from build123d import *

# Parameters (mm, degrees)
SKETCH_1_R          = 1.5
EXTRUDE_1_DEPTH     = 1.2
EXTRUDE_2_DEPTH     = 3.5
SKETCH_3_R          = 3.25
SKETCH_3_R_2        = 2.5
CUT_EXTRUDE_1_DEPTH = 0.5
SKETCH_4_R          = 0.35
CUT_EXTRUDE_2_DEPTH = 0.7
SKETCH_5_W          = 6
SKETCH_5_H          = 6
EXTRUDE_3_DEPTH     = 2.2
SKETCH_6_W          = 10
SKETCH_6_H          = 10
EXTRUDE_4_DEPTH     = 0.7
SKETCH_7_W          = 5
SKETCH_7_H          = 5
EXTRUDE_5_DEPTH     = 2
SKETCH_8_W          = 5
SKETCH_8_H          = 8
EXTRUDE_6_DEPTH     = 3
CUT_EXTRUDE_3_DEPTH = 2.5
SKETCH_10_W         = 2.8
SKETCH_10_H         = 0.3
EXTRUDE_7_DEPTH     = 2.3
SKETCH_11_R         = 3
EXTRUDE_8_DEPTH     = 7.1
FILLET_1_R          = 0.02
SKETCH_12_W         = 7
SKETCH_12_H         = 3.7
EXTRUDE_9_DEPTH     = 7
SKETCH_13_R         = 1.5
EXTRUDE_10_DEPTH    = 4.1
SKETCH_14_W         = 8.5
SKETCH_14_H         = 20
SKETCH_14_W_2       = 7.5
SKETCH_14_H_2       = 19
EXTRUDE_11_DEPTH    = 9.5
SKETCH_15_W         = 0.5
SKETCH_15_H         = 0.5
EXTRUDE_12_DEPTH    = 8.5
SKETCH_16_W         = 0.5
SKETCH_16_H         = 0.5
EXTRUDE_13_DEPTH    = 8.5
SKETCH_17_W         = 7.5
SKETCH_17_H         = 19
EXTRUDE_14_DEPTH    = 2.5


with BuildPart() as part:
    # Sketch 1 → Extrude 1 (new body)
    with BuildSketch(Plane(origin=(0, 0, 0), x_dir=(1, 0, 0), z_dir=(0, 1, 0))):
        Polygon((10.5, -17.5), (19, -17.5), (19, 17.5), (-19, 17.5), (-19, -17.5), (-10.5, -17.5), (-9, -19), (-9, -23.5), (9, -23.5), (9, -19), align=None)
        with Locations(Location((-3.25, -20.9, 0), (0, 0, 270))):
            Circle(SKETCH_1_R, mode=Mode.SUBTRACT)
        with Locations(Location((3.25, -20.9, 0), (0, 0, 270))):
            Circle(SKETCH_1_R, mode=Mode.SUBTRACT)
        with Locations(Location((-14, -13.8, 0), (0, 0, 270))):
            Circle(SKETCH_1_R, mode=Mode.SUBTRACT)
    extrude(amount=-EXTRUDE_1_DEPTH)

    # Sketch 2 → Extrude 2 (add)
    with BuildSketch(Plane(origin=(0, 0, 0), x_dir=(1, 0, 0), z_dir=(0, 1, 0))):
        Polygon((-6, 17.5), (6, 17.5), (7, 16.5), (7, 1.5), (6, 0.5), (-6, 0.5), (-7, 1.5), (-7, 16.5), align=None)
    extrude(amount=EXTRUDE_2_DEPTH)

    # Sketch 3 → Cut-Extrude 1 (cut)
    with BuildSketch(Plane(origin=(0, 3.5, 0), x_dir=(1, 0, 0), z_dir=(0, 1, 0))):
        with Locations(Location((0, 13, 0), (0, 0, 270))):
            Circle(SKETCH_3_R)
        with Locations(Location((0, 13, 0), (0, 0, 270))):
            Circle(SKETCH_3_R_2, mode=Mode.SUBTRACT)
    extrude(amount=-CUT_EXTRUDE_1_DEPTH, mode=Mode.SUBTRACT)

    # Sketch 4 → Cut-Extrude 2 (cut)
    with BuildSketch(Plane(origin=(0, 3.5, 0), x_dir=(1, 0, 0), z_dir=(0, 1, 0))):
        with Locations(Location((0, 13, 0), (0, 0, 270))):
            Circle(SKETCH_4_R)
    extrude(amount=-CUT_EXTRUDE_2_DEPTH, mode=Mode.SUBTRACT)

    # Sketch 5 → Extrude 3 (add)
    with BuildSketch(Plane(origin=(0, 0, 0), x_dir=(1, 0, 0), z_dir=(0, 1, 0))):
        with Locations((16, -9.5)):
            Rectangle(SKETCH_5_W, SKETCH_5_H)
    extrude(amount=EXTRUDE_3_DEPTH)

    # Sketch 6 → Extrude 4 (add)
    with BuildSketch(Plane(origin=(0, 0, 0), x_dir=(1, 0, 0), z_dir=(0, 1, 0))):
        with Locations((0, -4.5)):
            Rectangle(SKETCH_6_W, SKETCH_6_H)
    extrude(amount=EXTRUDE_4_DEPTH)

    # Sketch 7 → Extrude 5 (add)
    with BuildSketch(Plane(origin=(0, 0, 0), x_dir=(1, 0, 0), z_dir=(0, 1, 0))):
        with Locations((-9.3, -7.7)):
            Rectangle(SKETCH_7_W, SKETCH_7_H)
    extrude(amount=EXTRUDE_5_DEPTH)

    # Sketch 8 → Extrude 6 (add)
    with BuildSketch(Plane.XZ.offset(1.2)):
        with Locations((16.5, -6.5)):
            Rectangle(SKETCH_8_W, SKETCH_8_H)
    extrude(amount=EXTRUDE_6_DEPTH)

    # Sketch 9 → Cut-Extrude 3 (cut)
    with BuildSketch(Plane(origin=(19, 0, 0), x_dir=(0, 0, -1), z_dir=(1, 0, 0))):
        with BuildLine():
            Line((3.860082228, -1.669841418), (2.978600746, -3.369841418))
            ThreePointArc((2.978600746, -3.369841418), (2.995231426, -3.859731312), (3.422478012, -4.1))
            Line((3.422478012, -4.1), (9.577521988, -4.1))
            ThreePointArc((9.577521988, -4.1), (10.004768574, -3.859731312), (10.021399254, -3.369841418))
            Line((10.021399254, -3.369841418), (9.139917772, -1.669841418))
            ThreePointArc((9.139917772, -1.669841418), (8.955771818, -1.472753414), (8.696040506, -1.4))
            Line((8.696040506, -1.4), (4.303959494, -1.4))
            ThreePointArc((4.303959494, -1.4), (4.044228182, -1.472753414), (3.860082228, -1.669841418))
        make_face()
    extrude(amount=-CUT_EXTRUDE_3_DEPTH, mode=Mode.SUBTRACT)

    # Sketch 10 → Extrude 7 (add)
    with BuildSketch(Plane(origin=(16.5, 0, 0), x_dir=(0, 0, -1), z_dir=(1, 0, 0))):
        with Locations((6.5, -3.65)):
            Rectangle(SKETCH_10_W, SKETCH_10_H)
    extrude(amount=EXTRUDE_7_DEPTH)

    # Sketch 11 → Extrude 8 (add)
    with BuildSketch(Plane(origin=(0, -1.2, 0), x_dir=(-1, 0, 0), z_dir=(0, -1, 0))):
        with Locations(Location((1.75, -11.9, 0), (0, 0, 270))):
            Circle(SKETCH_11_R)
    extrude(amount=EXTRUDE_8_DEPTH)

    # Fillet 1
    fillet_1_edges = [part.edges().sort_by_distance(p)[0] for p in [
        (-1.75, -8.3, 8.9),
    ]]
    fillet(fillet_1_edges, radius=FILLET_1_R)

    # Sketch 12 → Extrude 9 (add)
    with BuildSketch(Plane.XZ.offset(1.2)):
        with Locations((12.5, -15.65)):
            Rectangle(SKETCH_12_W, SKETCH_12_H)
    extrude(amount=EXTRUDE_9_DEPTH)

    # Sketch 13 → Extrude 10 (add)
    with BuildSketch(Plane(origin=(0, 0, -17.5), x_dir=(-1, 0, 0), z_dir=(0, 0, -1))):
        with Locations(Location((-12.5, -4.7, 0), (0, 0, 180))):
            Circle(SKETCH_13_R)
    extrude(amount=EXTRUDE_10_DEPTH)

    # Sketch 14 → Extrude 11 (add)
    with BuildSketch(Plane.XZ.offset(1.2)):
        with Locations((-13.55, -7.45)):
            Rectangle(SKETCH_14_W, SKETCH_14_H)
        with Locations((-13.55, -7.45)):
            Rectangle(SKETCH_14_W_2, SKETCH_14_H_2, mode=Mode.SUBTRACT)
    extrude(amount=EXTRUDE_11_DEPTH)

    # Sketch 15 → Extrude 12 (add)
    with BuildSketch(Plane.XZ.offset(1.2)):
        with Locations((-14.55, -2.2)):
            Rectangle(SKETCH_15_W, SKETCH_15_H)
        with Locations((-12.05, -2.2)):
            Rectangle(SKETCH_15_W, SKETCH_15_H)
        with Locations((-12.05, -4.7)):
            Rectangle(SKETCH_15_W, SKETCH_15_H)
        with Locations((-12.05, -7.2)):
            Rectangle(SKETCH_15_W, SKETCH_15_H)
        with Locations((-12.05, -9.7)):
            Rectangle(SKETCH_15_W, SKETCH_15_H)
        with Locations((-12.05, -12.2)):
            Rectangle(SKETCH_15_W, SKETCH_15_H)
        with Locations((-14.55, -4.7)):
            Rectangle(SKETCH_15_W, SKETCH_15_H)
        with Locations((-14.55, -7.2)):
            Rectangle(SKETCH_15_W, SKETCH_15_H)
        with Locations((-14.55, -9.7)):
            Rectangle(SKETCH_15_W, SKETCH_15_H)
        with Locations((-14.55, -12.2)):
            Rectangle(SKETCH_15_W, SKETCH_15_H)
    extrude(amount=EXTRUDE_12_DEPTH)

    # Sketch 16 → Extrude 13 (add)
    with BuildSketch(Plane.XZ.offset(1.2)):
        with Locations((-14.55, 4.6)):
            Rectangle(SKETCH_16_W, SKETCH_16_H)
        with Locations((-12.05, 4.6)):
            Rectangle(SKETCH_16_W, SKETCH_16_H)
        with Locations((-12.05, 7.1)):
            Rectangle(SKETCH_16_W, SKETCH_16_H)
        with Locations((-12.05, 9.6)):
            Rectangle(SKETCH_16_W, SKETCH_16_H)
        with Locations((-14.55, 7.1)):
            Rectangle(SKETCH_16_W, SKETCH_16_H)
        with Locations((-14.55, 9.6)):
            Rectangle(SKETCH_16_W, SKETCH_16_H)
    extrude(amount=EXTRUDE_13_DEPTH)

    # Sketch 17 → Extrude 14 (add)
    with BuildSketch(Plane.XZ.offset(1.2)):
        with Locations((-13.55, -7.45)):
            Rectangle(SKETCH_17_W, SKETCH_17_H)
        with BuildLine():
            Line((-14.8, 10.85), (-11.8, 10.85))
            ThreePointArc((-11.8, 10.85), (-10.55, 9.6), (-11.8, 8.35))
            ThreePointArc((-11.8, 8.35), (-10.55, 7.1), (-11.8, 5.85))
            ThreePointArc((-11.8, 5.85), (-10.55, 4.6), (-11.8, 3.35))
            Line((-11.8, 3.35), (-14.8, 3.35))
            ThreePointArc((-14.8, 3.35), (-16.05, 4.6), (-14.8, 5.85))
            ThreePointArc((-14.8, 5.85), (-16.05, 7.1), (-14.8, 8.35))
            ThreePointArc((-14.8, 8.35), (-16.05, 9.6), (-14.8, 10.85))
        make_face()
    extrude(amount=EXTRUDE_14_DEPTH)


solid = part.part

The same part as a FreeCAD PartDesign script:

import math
import FreeCAD as App
import Part
import Sketcher
from FreeCAD import Vector
Q = App.Units.Quantity


def edges_at(feature, points):
    """Names of the edges that pass closest to the given points."""
    edges = feature.Shape.Edges
    near = lambda p: min(range(len(edges)), key=lambda i: edges[i].distToShape(Part.Vertex(*p))[0])
    return sorted({f"Edge{near(p) + 1}" for p in points})

doc = App.newDocument("Part")
body = doc.addObject("PartDesign::Body", "Body")

sketch1 = body.newObject("Sketcher::SketchObject", "Sketch")
sketch1.AttachmentSupport = (doc.getObject("XZ_Plane"), [""])
sketch1.MapMode = "FlatFace"
sketch1.addGeometry([
    Part.LineSegment(Vector(10.5, 17.5, 0), Vector(19, 17.5, 0)),
    Part.LineSegment(Vector(19, 17.5, 0), Vector(19, -17.5, 0)),
    Part.LineSegment(Vector(19, -17.5, 0), Vector(-19, -17.5, 0)),
    Part.LineSegment(Vector(-19, -17.5, 0), Vector(-19, 17.5, 0)),
    Part.LineSegment(Vector(-19, 17.5, 0), Vector(-10.5, 17.5, 0)),
    Part.LineSegment(Vector(-10.5, 17.5, 0), Vector(-9, 19, 0)),
    Part.LineSegment(Vector(-9, 19, 0), Vector(-9, 23.5, 0)),
    Part.LineSegment(Vector(-9, 23.5, 0), Vector(9, 23.5, 0)),
    Part.LineSegment(Vector(9, 23.5, 0), Vector(9, 19, 0)),
    Part.LineSegment(Vector(9, 19, 0), Vector(10.5, 17.5, 0)),
    Part.Circle(Vector(-3.2, 20.9, 0), Vector(0, 0, 1), 1.5),
    Part.Circle(Vector(3.2, 20.9, 0), Vector(0, 0, 1), 1.5),
    Part.Circle(Vector(-14, 13.8, 0), Vector(0, 0, 1), 1.5),
], False)
sketch1.addConstraint([
    Sketcher.Constraint("Coincident", 0, 2, 1, 1),
    Sketcher.Constraint("Coincident", 1, 2, 2, 1),
    Sketcher.Constraint("Coincident", 2, 2, 3, 1),
    Sketcher.Constraint("Coincident", 3, 2, 4, 1),
    Sketcher.Constraint("Coincident", 4, 2, 5, 1),
    Sketcher.Constraint("Coincident", 5, 2, 6, 1),
    Sketcher.Constraint("Coincident", 6, 2, 7, 1),
    Sketcher.Constraint("Coincident", 7, 2, 8, 1),
    Sketcher.Constraint("Coincident", 8, 2, 9, 1),
    Sketcher.Constraint("Coincident", 9, 2, 0, 1),
    Sketcher.Constraint("Horizontal", 0),
    Sketcher.Constraint("Vertical", 1),
    Sketcher.Constraint("Horizontal", 2),
    Sketcher.Constraint("Vertical", 3),
    Sketcher.Constraint("Horizontal", 4),
    Sketcher.Constraint("Vertical", 6),
    Sketcher.Constraint("Horizontal", 7),
    Sketcher.Constraint("Vertical", 8),
    Sketcher.Constraint("Equal", 10, 11),
    Sketcher.Constraint("Equal", 11, 12),
    Sketcher.Constraint("Symmetric", 0, 2, 2, 2, -1, 1),
    Sketcher.Constraint("Symmetric", 10, 3, 11, 3, -2),
    Sketcher.Constraint("Symmetric", 5, 2, 8, 2, -2),
    Sketcher.Constraint("Symmetric", 4, 2, 9, 2, -2),
    Sketcher.Constraint("Perpendicular", 5, 9),
    Sketcher.Constraint("Diameter", 10, Q("3 mm")),
    Sketcher.Constraint("DistanceX", 2, 2, 2, 1, Q("38 mm")),
    Sketcher.Constraint("DistanceX", 7, 1, 7, 2, Q("18 mm")),
    Sketcher.Constraint("DistanceY", 1, 2, 1, 1, Q("35 mm")),
    Sketcher.Constraint("DistanceX", 0, 1, 0, 2, Q("8.5 mm")),
    Sketcher.Constraint("DistanceY", 6, 1, 6, 2, Q("4.5 mm")),
    Sketcher.Constraint("DistanceX", 12, 3, -1, 1, Q("14 mm")),
    Sketcher.Constraint("DistanceY", -1, 1, 10, 3, Q("20.9 mm")),
    Sketcher.Constraint("DistanceY", -1, 1, 12, 3, Q("13.8 mm")),
    Sketcher.Constraint("DistanceX", 10, 3, 11, 3, Q("6.5 mm")),
])
pad1 = body.newObject("PartDesign::Pad", "Pad")
pad1.Profile = sketch1
pad1.Length = 1.2

sketch2 = body.newObject("Sketcher::SketchObject", "Sketch001")
sketch2.AttachmentSupport = (doc.getObject("XZ_Plane"), [""])
sketch2.MapMode = "FlatFace"
sketch2.addGeometry([
    Part.LineSegment(Vector(6, -17.5, 0), Vector(-6, -17.5, 0)),
    Part.LineSegment(Vector(-6, -17.5, 0), Vector(-7, -16.5, 0)),
    Part.LineSegment(Vector(-7, -16.5, 0), Vector(-7, -1.5, 0)),
    Part.LineSegment(Vector(-7, -1.5, 0), Vector(-6, -0.5, 0)),
    Part.LineSegment(Vector(-6, -0.5, 0), Vector(6, -0.5, 0)),
    Part.LineSegment(Vector(6, -0.5, 0), Vector(7, -1.5, 0)),
    Part.LineSegment(Vector(7, -1.5, 0), Vector(7, -16.5, 0)),
    Part.LineSegment(Vector(7, -16.5, 0), Vector(6, -17.5, 0)),
], False)
sketch2.addConstraint([
    Sketcher.Constraint("Coincident", 0, 2, 1, 1),
    Sketcher.Constraint("Coincident", 1, 2, 2, 1),
    Sketcher.Constraint("Coincident", 2, 2, 3, 1),
    Sketcher.Constraint("Coincident", 3, 2, 4, 1),
    Sketcher.Constraint("Coincident", 4, 2, 5, 1),
    Sketcher.Constraint("Coincident", 5, 2, 6, 1),
    Sketcher.Constraint("Coincident", 6, 2, 7, 1),
    Sketcher.Constraint("Coincident", 7, 2, 0, 1),
    Sketcher.Constraint("Horizontal", 0),
    Sketcher.Constraint("Vertical", 2),
    Sketcher.Constraint("Horizontal", 4),
    Sketcher.Constraint("Vertical", 6),
    Sketcher.Constraint("Symmetric", 2, 2, 5, 2, -2),
    Sketcher.Constraint("Perpendicular", 1, 3),
    Sketcher.Constraint("Perpendicular", 3, 5),
    Sketcher.Constraint("Perpendicular", 5, 7),
    Sketcher.Constraint("Horizontal", 1, 2, 6, 2),
    Sketcher.Constraint("Vertical", 0, 2, 3, 2),
    Sketcher.Constraint("Vertical", 4, 2, 7, 2),
    Sketcher.Constraint("DistanceX", 0, 2, 0, 1, Q("12 mm")),
    Sketcher.Constraint("DistanceY", 2, 1, 2, 2, Q("15 mm")),
    Sketcher.Constraint("DistanceX", 1, 2, -1, 1, Q("7 mm")),
    Sketcher.Constraint("DistanceY", 0, 2, -1, 1, Q("17.5 mm")),
])
pad2 = body.newObject("PartDesign::Pad", "Pad001")
pad2.Profile = sketch2
pad2.Length = 3.5
pad2.Reversed = True

sketch3 = body.newObject("Sketcher::SketchObject", "Sketch002")
sketch3.AttachmentSupport = (doc.getObject("XZ_Plane"), [""])
sketch3.MapMode = "FlatFace"
sketch3.AttachmentOffset = App.Placement(Vector(0, 0, -3.5), App.Rotation())
sketch3.addGeometry([
    Part.Circle(Vector(0, -13, 0), Vector(0, 0, 1), 3.2),
    Part.Circle(Vector(0, -13, 0), Vector(0, 0, 1), 2.5),
], False)
sketch3.addConstraint([
    Sketcher.Constraint("Coincident", 1, 3, 0, 3),
    Sketcher.Constraint("PointOnObject", 0, 3, -2),
    Sketcher.Constraint("Diameter", 1, Q("5 mm")),
    Sketcher.Constraint("Diameter", 0, Q("6.5 mm")),
    Sketcher.Constraint("DistanceY", 0, 3, -1, 1, Q("13 mm")),
])
pocket1 = body.newObject("PartDesign::Pocket", "Pocket")
pocket1.Profile = sketch3
pocket1.Length = 0.5
pocket1.Reversed = True

sketch4 = body.newObject("Sketcher::SketchObject", "Sketch003")
sketch4.AttachmentSupport = (doc.getObject("XZ_Plane"), [""])
sketch4.MapMode = "FlatFace"
sketch4.AttachmentOffset = App.Placement(Vector(0, 0, -3.5), App.Rotation())
sketch4.addGeometry(Part.Circle(Vector(0, -13, 0), Vector(0, 0, 1), 0.35), False)
sketch4.addConstraint([
    Sketcher.Constraint("PointOnObject", 0, 3, -2),
    Sketcher.Constraint("Diameter", 0, Q("0.7 mm")),
    Sketcher.Constraint("DistanceY", 0, 3, -1, 1, Q("13 mm")),
])
pocket2 = body.newObject("PartDesign::Pocket", "Pocket001")
pocket2.Profile = sketch4
pocket2.Length = 0.7
pocket2.Reversed = True

sketch5 = body.newObject("Sketcher::SketchObject", "Sketch004")
sketch5.AttachmentSupport = (doc.getObject("XZ_Plane"), [""])
sketch5.MapMode = "FlatFace"
sketch5.addGeometry([
    Part.LineSegment(Vector(13, 6, 0), Vector(13, 12, 0)),
    Part.LineSegment(Vector(13, 12, 0), Vector(19, 12, 0)),
    Part.LineSegment(Vector(19, 12, 0), Vector(19, 6, 0)),
    Part.LineSegment(Vector(19, 6, 0), Vector(13, 6, 0)),
], False)
sketch5.addConstraint([
    Sketcher.Constraint("Coincident", 0, 2, 1, 1),
    Sketcher.Constraint("Coincident", 1, 2, 2, 1),
    Sketcher.Constraint("Coincident", 2, 2, 3, 1),
    Sketcher.Constraint("Coincident", 3, 2, 0, 1),
    Sketcher.Constraint("Vertical", 0),
    Sketcher.Constraint("Horizontal", 1),
    Sketcher.Constraint("Vertical", 2),
    Sketcher.Constraint("Horizontal", 3),
    Sketcher.Constraint("Equal", 3, 0),
    Sketcher.Constraint("DistanceX", 1, 1, 1, 2, Q("6 mm")),
    Sketcher.Constraint("DistanceX", -1, 1, 0, 2, Q("13 mm")),
    Sketcher.Constraint("DistanceY", -1, 1, 0, 2, Q("12.5 mm")),
])
pad3 = body.newObject("PartDesign::Pad", "Pad002")
pad3.Profile = sketch5
pad3.Length = 2.2
pad3.Reversed = True

sketch6 = body.newObject("Sketcher::SketchObject", "Sketch005")
sketch6.AttachmentSupport = (doc.getObject("XZ_Plane"), [""])
sketch6.MapMode = "FlatFace"
sketch6.addGeometry([
    Part.LineSegment(Vector(-5, 0, 0), Vector(-5, 10, 0)),
    Part.LineSegment(Vector(-5, 10, 0), Vector(5, 10, 0)),
    Part.LineSegment(Vector(5, 10, 0), Vector(5, 0, 0)),
    Part.LineSegment(Vector(5, 0, 0), Vector(-5, 0, 0)),
], False)
sketch6.addConstraint([
    Sketcher.Constraint("Coincident", 0, 2, 1, 1),
    Sketcher.Constraint("Coincident", 1, 2, 2, 1),
    Sketcher.Constraint("Coincident", 2, 2, 3, 1),
    Sketcher.Constraint("Coincident", 3, 2, 0, 1),
    Sketcher.Constraint("Vertical", 0),
    Sketcher.Constraint("Horizontal", 1),
    Sketcher.Constraint("Vertical", 2),
    Sketcher.Constraint("Horizontal", 3),
    Sketcher.Constraint("Equal", 3, 0),
    Sketcher.Constraint("DistanceX", 1, 1, 1, 2, Q("10 mm")),
    Sketcher.Constraint("DistanceX", 0, 2, -1, 1, Q("5 mm")),
    Sketcher.Constraint("DistanceY", -1, 1, 0, 2, Q("9.5 mm")),
])
pad4 = body.newObject("PartDesign::Pad", "Pad003")
pad4.Profile = sketch6
pad4.Length = 0.7
pad4.Reversed = True

sketch7 = body.newObject("Sketcher::SketchObject", "Sketch006")
sketch7.AttachmentSupport = (doc.getObject("XZ_Plane"), [""])
sketch7.MapMode = "FlatFace"
sketch7.addGeometry([
    Part.LineSegment(Vector(-11.8, 5.2, 0), Vector(-11.8, 10.2, 0)),
    Part.LineSegment(Vector(-11.8, 10.2, 0), Vector(-6.8, 10.2, 0)),
    Part.LineSegment(Vector(-6.8, 10.2, 0), Vector(-6.8, 5.2, 0)),
    Part.LineSegment(Vector(-6.8, 5.2, 0), Vector(-11.8, 5.2, 0)),
], False)
sketch7.addConstraint([
    Sketcher.Constraint("Coincident", 0, 2, 1, 1),
    Sketcher.Constraint("Coincident", 1, 2, 2, 1),
    Sketcher.Constraint("Coincident", 2, 2, 3, 1),
    Sketcher.Constraint("Coincident", 3, 2, 0, 1),
    Sketcher.Constraint("Vertical", 0),
    Sketcher.Constraint("Horizontal", 1),
    Sketcher.Constraint("Vertical", 2),
    Sketcher.Constraint("Horizontal", 3),
    Sketcher.Constraint("Equal", 3, 0),
    Sketcher.Constraint("DistanceX", 1, 1, 1, 2, Q("5 mm")),
    Sketcher.Constraint("DistanceX", 0, 2, -1, 1, Q("11.8 mm")),
    Sketcher.Constraint("DistanceY", -1, 1, 0, 2, Q("10.2 mm")),
])
pad5 = body.newObject("PartDesign::Pad", "Pad004")
pad5.Profile = sketch7
pad5.Length = 2
pad5.Reversed = True

sketch8 = body.newObject("Sketcher::SketchObject", "Sketch007")
sketch8.AttachmentSupport = (doc.getObject("XZ_Plane"), [""])
sketch8.MapMode = "FlatFace"
sketch8.AttachmentOffset = App.Placement(Vector(0, 0, 1.2), App.Rotation())
sketch8.addGeometry([
    Part.LineSegment(Vector(14, -2, 0), Vector(14, -10, 0)),
    Part.LineSegment(Vector(14, -10, 0), Vector(19, -10, 0)),
    Part.LineSegment(Vector(19, -10, 0), Vector(19, -2, 0)),
    Part.LineSegment(Vector(19, -2, 0), Vector(14, -2, 0)),
], False)
sketch8.addConstraint([
    Sketcher.Constraint("Coincident", 0, 2, 1, 1),
    Sketcher.Constraint("Coincident", 1, 2, 2, 1),
    Sketcher.Constraint("Coincident", 2, 2, 3, 1),
    Sketcher.Constraint("Coincident", 3, 2, 0, 1),
    Sketcher.Constraint("Vertical", 0),
    Sketcher.Constraint("Horizontal", 1),
    Sketcher.Constraint("Vertical", 2),
    Sketcher.Constraint("Horizontal", 3),
    Sketcher.Constraint("DistanceX", 1, 1, 1, 2, Q("5 mm")),
    Sketcher.Constraint("DistanceY", 0, 2, 0, 1, Q("8 mm")),
    Sketcher.Constraint("DistanceX", -1, 1, 0, 2, Q("14 mm")),
    Sketcher.Constraint("DistanceY", 0, 2, -1, 1, Q("10.5 mm")),
])
pad6 = body.newObject("PartDesign::Pad", "Pad005")
pad6.Profile = sketch8
pad6.Length = 3

sketch9 = body.newObject("Sketcher::SketchObject", "Sketch008")
sketch9.AttachmentSupport = (doc.getObject("YZ_Plane"), [""])
sketch9.MapMode = "FlatFace"
sketch9.AttachmentOffset = App.Placement(Vector(0, 0, 19), App.Rotation())
sketch9.addGeometry([
    Part.LineSegment(Vector(-1.7, -3.9, 0), Vector(-3.4, -3, 0)),
    Part.ArcOfCircle(Part.Circle(Vector(-3.6, -3.4, 0), Vector(0, 0, 1), 0.5), math.radians(63), math.radians(180)),
    Part.LineSegment(Vector(-4.1, -3.4, 0), Vector(-4.1, -9.6, 0)),
    Part.ArcOfCircle(Part.Circle(Vector(-3.6, -9.6, 0), Vector(0, 0, 1), 0.5), math.radians(-180), math.radians(-63)),
    Part.LineSegment(Vector(-3.4, -10, 0), Vector(-1.7, -9.1, 0)),
    Part.ArcOfCircle(Part.Circle(Vector(-1.9, -8.7, 0), Vector(0, 0, 1), 0.5), math.radians(-63), math.radians(0)),
    Part.LineSegment(Vector(-1.4, -8.7, 0), Vector(-1.4, -4.3, 0)),
    Part.ArcOfCircle(Part.Circle(Vector(-1.9, -4.3, 0), Vector(0, 0, 1), 0.5), math.radians(0), math.radians(63)),
], False)
sketch9.addConstraint([
    Sketcher.Constraint("Tangent", 0, 2, 1, 1),
    Sketcher.Constraint("Tangent", 1, 2, 2, 1),
    Sketcher.Constraint("Tangent", 2, 2, 3, 1),
    Sketcher.Constraint("Tangent", 3, 2, 4, 1),
    Sketcher.Constraint("Tangent", 4, 2, 5, 1),
    Sketcher.Constraint("Tangent", 5, 2, 6, 1),
    Sketcher.Constraint("Tangent", 6, 2, 7, 1),
    Sketcher.Constraint("Tangent", 7, 2, 0, 1),
    Sketcher.Constraint("Vertical", 2),
    Sketcher.Constraint("Vertical", 6),
    Sketcher.Constraint("Equal", 1, 3),
    Sketcher.Constraint("Equal", 3, 5),
    Sketcher.Constraint("Equal", 5, 7),
    Sketcher.Constraint("Vertical", 0, 2, 3, 2),
    Sketcher.Constraint("Radius", 1, Q("0.5 mm")),
    Sketcher.Constraint("DistanceX", 1, 3, -1, 1, Q("3.6 mm")),
    Sketcher.Constraint("DistanceX", 5, 3, -1, 1, Q("1.9 mm")),
    Sketcher.Constraint("DistanceY", 6, 1, 6, 2, Q("4.392081 mm")),
    Sketcher.Constraint("DistanceY", 0, 2, -1, 1, Q("2.978601 mm")),
    Sketcher.Constraint("DistanceY", 3, 2, -1, 1, Q("10.021399 mm")),
])
pocket3 = body.newObject("PartDesign::Pocket", "Pocket002")
pocket3.Profile = sketch9
pocket3.Length = 2.5

sketch10 = body.newObject("Sketcher::SketchObject", "Sketch009")
sketch10.AttachmentSupport = (doc.getObject("YZ_Plane"), [""])
sketch10.MapMode = "FlatFace"
sketch10.AttachmentOffset = App.Placement(Vector(0, 0, 16.5), App.Rotation())
sketch10.addGeometry([
    Part.LineSegment(Vector(-3.5, -5.1, 0), Vector(-3.8, -5.1, 0)),
    Part.LineSegment(Vector(-3.8, -5.1, 0), Vector(-3.8, -7.9, 0)),
    Part.LineSegment(Vector(-3.8, -7.9, 0), Vector(-3.5, -7.9, 0)),
    Part.LineSegment(Vector(-3.5, -7.9, 0), Vector(-3.5, -5.1, 0)),
], False)
sketch10.addConstraint([
    Sketcher.Constraint("Coincident", 0, 2, 1, 1),
    Sketcher.Constraint("Coincident", 1, 2, 2, 1),
    Sketcher.Constraint("Coincident", 2, 2, 3, 1),
    Sketcher.Constraint("Coincident", 3, 2, 0, 1),
    Sketcher.Constraint("Horizontal", 0),
    Sketcher.Constraint("Vertical", 1),
    Sketcher.Constraint("Horizontal", 2),
    Sketcher.Constraint("Vertical", 3),
    Sketcher.Constraint("DistanceX", 0, 2, 0, 1, Q("0.3 mm")),
    Sketcher.Constraint("DistanceY", 1, 2, 1, 1, Q("2.8 mm")),
    Sketcher.Constraint("DistanceX", 0, 2, -1, 1, Q("3.8 mm")),
    Sketcher.Constraint("DistanceY", 0, 2, -1, 1, Q("5.1 mm")),
])
pad7 = body.newObject("PartDesign::Pad", "Pad006")
pad7.Profile = sketch10
pad7.Length = 2.3

sketch11 = body.newObject("Sketcher::SketchObject", "Sketch010")
sketch11.AttachmentSupport = (doc.getObject("XZ_Plane"), [""])
sketch11.MapMode = "FlatFace"
sketch11.AttachmentOffset = App.Placement(Vector(0, 0, 1.2), App.Rotation())
sketch11.addGeometry(Part.Circle(Vector(-1.8, 11.9, 0), Vector(0, 0, 1), 3), False)
sketch11.addConstraint([
    Sketcher.Constraint("Diameter", 0, Q("6 mm")),
    Sketcher.Constraint("DistanceY", -1, 1, 0, 3, Q("11.9 mm")),
    Sketcher.Constraint("DistanceX", 0, 3, -1, 1, Q("1.75 mm")),
])
pad8 = body.newObject("PartDesign::Pad", "Pad007")
pad8.Profile = sketch11
pad8.Length = 7.1
doc.recompute()

fillet = body.newObject("PartDesign::Fillet", "Fillet")
fillet.Base = (pad8, edges_at(pad8, [(-1.75, -8.3, 8.9)]))
fillet.Radius = 0.02

sketch12 = body.newObject("Sketcher::SketchObject", "Sketch011")
sketch12.AttachmentSupport = (doc.getObject("XZ_Plane"), [""])
sketch12.MapMode = "FlatFace"
sketch12.AttachmentOffset = App.Placement(Vector(0, 0, 1.2), App.Rotation())
sketch12.addGeometry([
    Part.LineSegment(Vector(9, -13.8, 0), Vector(9, -17.5, 0)),
    Part.LineSegment(Vector(9, -17.5, 0), Vector(16, -17.5, 0)),
    Part.LineSegment(Vector(16, -17.5, 0), Vector(16, -13.8, 0)),
    Part.LineSegment(Vector(16, -13.8, 0), Vector(9, -13.8, 0)),
], False)
sketch12.addConstraint([
    Sketcher.Constraint("Coincident", 0, 2, 1, 1),
    Sketcher.Constraint("Coincident", 1, 2, 2, 1),
    Sketcher.Constraint("Coincident", 2, 2, 3, 1),
    Sketcher.Constraint("Coincident", 3, 2, 0, 1),
    Sketcher.Constraint("Vertical", 0),
    Sketcher.Constraint("Horizontal", 1),
    Sketcher.Constraint("Vertical", 2),
    Sketcher.Constraint("Horizontal", 3),
    Sketcher.Constraint("DistanceX", 1, 1, 1, 2, Q("7 mm")),
    Sketcher.Constraint("DistanceY", 0, 2, 0, 1, Q("3.7 mm")),
    Sketcher.Constraint("DistanceX", -1, 1, 0, 2, Q("9 mm")),
    Sketcher.Constraint("DistanceY", 0, 2, -1, 1, Q("17.5 mm")),
])
pad9 = body.newObject("PartDesign::Pad", "Pad008")
pad9.Profile = sketch12
pad9.Length = 7

sketch13 = body.newObject("Sketcher::SketchObject", "Sketch012")
sketch13.AttachmentSupport = (doc.getObject("XY_Plane"), [""])
sketch13.MapMode = "FlatFace"
sketch13.AttachmentOffset = App.Placement(Vector(0, 0, -17.5), App.Rotation())
sketch13.addGeometry(Part.Circle(Vector(12.5, -4.7, 0), Vector(0, 0, 1), 1.5), False)
sketch13.addConstraint([
    Sketcher.Constraint("Diameter", 0, Q("3 mm")),
    Sketcher.Constraint("DistanceX", -1, 1, 0, 3, Q("12.5 mm")),
    Sketcher.Constraint("DistanceY", 0, 3, -1, 1, Q("4.7 mm")),
])
pad10 = body.newObject("PartDesign::Pad", "Pad009")
pad10.Profile = sketch13
pad10.Length = 4.1
pad10.Reversed = True

sketch14 = body.newObject("Sketcher::SketchObject", "Sketch013")
sketch14.AttachmentSupport = (doc.getObject("XZ_Plane"), [""])
sketch14.MapMode = "FlatFace"
sketch14.AttachmentOffset = App.Placement(Vector(0, 0, 1.2), App.Rotation())
sketch14.addGeometry([
    Part.LineSegment(Vector(-18, 3, 0), Vector(-18, -17, 0)),
    Part.LineSegment(Vector(-18, -17, 0), Vector(-9, -17, 0)),
    Part.LineSegment(Vector(-9, -17, 0), Vector(-9, 3, 0)),
    Part.LineSegment(Vector(-9, 3, 0), Vector(-18, 3, 0)),
    Part.LineSegment(Vector(-10, -17, 0), Vector(-17, -17, 0)),
    Part.LineSegment(Vector(-17, -17, 0), Vector(-17, 2, 0)),
    Part.LineSegment(Vector(-17, 2, 0), Vector(-10, 2, 0)),
    Part.LineSegment(Vector(-10, 2, 0), Vector(-10, -17, 0)),
], False)
sketch14.addConstraint([
    Sketcher.Constraint("Coincident", 0, 2, 1, 1),
    Sketcher.Constraint("Coincident", 1, 2, 2, 1),
    Sketcher.Constraint("Coincident", 2, 2, 3, 1),
    Sketcher.Constraint("Coincident", 3, 2, 0, 1),
    Sketcher.Constraint("Coincident", 4, 2, 5, 1),
    Sketcher.Constraint("Coincident", 5, 2, 6, 1),
    Sketcher.Constraint("Coincident", 6, 2, 7, 1),
    Sketcher.Constraint("Coincident", 7, 2, 4, 1),
    Sketcher.Constraint("Vertical", 0),
    Sketcher.Constraint("Horizontal", 1),
    Sketcher.Constraint("Vertical", 2),
    Sketcher.Constraint("Horizontal", 3),
    Sketcher.Constraint("Horizontal", 4),
    Sketcher.Constraint("Vertical", 5),
    Sketcher.Constraint("Horizontal", 6),
    Sketcher.Constraint("Vertical", 7),
    Sketcher.Constraint("DistanceY", 0, 2, 0, 1, Q("20 mm")),
    Sketcher.Constraint("DistanceY", 5, 1, 5, 2, Q("19 mm")),
    Sketcher.Constraint("DistanceX", 1, 1, 1, 2, Q("8.5 mm")),
    Sketcher.Constraint("DistanceX", 4, 2, 4, 1, Q("7.5 mm")),
    Sketcher.Constraint("DistanceX", 4, 2, 1, 2, Q("8 mm")),
    Sketcher.Constraint("DistanceX", 0, 2, -1, 1, Q("17.8 mm")),
    Sketcher.Constraint("DistanceY", 0, 2, 4, 2, Q("0.5 mm")),
    Sketcher.Constraint("DistanceY", 0, 2, -1, 1, Q("17.45 mm")),
])
pad11 = body.newObject("PartDesign::Pad", "Pad010")
pad11.Profile = sketch14
pad11.Length = 9.5

sketch15 = body.newObject("Sketcher::SketchObject", "Sketch014")
sketch15.AttachmentSupport = (doc.getObject("XZ_Plane"), [""])
sketch15.MapMode = "FlatFace"
sketch15.AttachmentOffset = App.Placement(Vector(0, 0, 1.2), App.Rotation())
sketch15.addGeometry([
    Part.LineSegment(Vector(-14.8, -1.9, 0), Vector(-14.8, -2.5, 0)),
    Part.LineSegment(Vector(-14.8, -2.5, 0), Vector(-14.3, -2.5, 0)),
    Part.LineSegment(Vector(-14.3, -2.5, 0), Vector(-14.3, -1.9, 0)),
    Part.LineSegment(Vector(-14.3, -1.9, 0), Vector(-14.8, -1.9, 0)),
    Part.LineSegment(Vector(-12.3, -1.9, 0), Vector(-12.3, -2.5, 0)),
    Part.LineSegment(Vector(-12.3, -2.5, 0), Vector(-11.8, -2.5, 0)),
    Part.LineSegment(Vector(-11.8, -2.5, 0), Vector(-11.8, -1.9, 0)),
    Part.LineSegment(Vector(-11.8, -1.9, 0), Vector(-12.3, -1.9, 0)),
    Part.LineSegment(Vector(-12.3, -4.5, 0), Vector(-12.3, -5, 0)),
    Part.LineSegment(Vector(-12.3, -5, 0), Vector(-11.8, -5, 0)),
    Part.LineSegment(Vector(-11.8, -5, 0), Vector(-11.8, -4.5, 0)),
    Part.LineSegment(Vector(-11.8, -4.5, 0), Vector(-12.3, -4.5, 0)),
    Part.LineSegment(Vector(-12.3, -7, 0), Vector(-12.3, -7.5, 0)),
    Part.LineSegment(Vector(-12.3, -7.5, 0), Vector(-11.8, -7.5, 0)),
    Part.LineSegment(Vector(-11.8, -7.5, 0), Vector(-11.8, -7, 0)),
    Part.LineSegment(Vector(-11.8, -7, 0), Vector(-12.3, -7, 0)),
    Part.LineSegment(Vector(-12.3, -9.4, 0), Vector(-12.3, -9.9, 0)),
    Part.LineSegment(Vector(-12.3, -9.9, 0), Vector(-11.8, -9.9, 0)),
    Part.LineSegment(Vector(-11.8, -9.9, 0), Vector(-11.8, -9.4, 0)),
    Part.LineSegment(Vector(-11.8, -9.4, 0), Vector(-12.3, -9.4, 0)),
    Part.LineSegment(Vector(-12.3, -11.9, 0), Vector(-12.3, -12.4, 0)),
    Part.LineSegment(Vector(-12.3, -12.4, 0), Vector(-11.8, -12.4, 0)),
    Part.LineSegment(Vector(-11.8, -12.4, 0), Vector(-11.8, -11.9, 0)),
    Part.LineSegment(Vector(-11.8, -11.9, 0), Vector(-12.3, -11.9, 0)),
    Part.LineSegment(Vector(-14.8, -4.5, 0), Vector(-14.8, -5, 0)),
    Part.LineSegment(Vector(-14.8, -5, 0), Vector(-14.3, -5, 0)),
    Part.LineSegment(Vector(-14.3, -5, 0), Vector(-14.3, -4.5, 0)),
    Part.LineSegment(Vector(-14.3, -4.5, 0), Vector(-14.8, -4.5, 0)),
    Part.LineSegment(Vector(-14.8, -7, 0), Vector(-14.8, -7.5, 0)),
    Part.LineSegment(Vector(-14.8, -7.5, 0), Vector(-14.3, -7.5, 0)),
    Part.LineSegment(Vector(-14.3, -7.5, 0), Vector(-14.3, -7, 0)),
    Part.LineSegment(Vector(-14.3, -7, 0), Vector(-14.8, -7, 0)),
    Part.LineSegment(Vector(-14.8, -9.4, 0), Vector(-14.8, -9.9, 0)),
    Part.LineSegment(Vector(-14.8, -9.9, 0), Vector(-14.3, -9.9, 0)),
    Part.LineSegment(Vector(-14.3, -9.9, 0), Vector(-14.3, -9.4, 0)),
    Part.LineSegment(Vector(-14.3, -9.4, 0), Vector(-14.8, -9.4, 0)),
    Part.LineSegment(Vector(-14.8, -11.9, 0), Vector(-14.8, -12.4, 0)),
    Part.LineSegment(Vector(-14.8, -12.4, 0), Vector(-14.3, -12.4, 0)),
    Part.LineSegment(Vector(-14.3, -12.4, 0), Vector(-14.3, -11.9, 0)),
    Part.LineSegment(Vector(-14.3, -11.9, 0), Vector(-14.8, -11.9, 0)),
], False)
sketch15.addConstraint([
    Sketcher.Constraint("Coincident", 0, 2, 1, 1),
    Sketcher.Constraint("Coincident", 1, 2, 2, 1),
    Sketcher.Constraint("Coincident", 2, 2, 3, 1),
    Sketcher.Constraint("Coincident", 3, 2, 0, 1),
    Sketcher.Constraint("Coincident", 4, 2, 5, 1),
    Sketcher.Constraint("Coincident", 5, 2, 6, 1),
    Sketcher.Constraint("Coincident", 6, 2, 7, 1),
    Sketcher.Constraint("Coincident", 7, 2, 4, 1),
    Sketcher.Constraint("Coincident", 8, 2, 9, 1),
    Sketcher.Constraint("Coincident", 9, 2, 10, 1),
    Sketcher.Constraint("Coincident", 10, 2, 11, 1),
    Sketcher.Constraint("Coincident", 11, 2, 8, 1),
    Sketcher.Constraint("Coincident", 12, 2, 13, 1),
    Sketcher.Constraint("Coincident", 13, 2, 14, 1),
    Sketcher.Constraint("Coincident", 14, 2, 15, 1),
    Sketcher.Constraint("Coincident", 15, 2, 12, 1),
    Sketcher.Constraint("Coincident", 16, 2, 17, 1),
    Sketcher.Constraint("Coincident", 17, 2, 18, 1),
    Sketcher.Constraint("Coincident", 18, 2, 19, 1),
    Sketcher.Constraint("Coincident", 19, 2, 16, 1),
    Sketcher.Constraint("Coincident", 20, 2, 21, 1),
    Sketcher.Constraint("Coincident", 21, 2, 22, 1),
    Sketcher.Constraint("Coincident", 22, 2, 23, 1),
    Sketcher.Constraint("Coincident", 23, 2, 20, 1),
    Sketcher.Constraint("Coincident", 24, 2, 25, 1),
    Sketcher.Constraint("Coincident", 25, 2, 26, 1),
    Sketcher.Constraint("Coincident", 26, 2, 27, 1),
    Sketcher.Constraint("Coincident", 27, 2, 24, 1),
    Sketcher.Constraint("Coincident", 28, 2, 29, 1),
    Sketcher.Constraint("Coincident", 29, 2, 30, 1),
    Sketcher.Constraint("Coincident", 30, 2, 31, 1),
    Sketcher.Constraint("Coincident", 31, 2, 28, 1),
    Sketcher.Constraint("Coincident", 32, 2, 33, 1),
    Sketcher.Constraint("Coincident", 33, 2, 34, 1),
    Sketcher.Constraint("Coincident", 34, 2, 35, 1),
    Sketcher.Constraint("Coincident", 35, 2, 32, 1),
    Sketcher.Constraint("Coincident", 36, 2, 37, 1),
    Sketcher.Constraint("Coincident", 37, 2, 38, 1),
    Sketcher.Constraint("Coincident", 38, 2, 39, 1),
    Sketcher.Constraint("Coincident", 39, 2, 36, 1),
    Sketcher.Constraint("Vertical", 0),
    Sketcher.Constraint("Horizontal", 1),
    Sketcher.Constraint("Vertical", 2),
    Sketcher.Constraint("Horizontal", 3),
    Sketcher.Constraint("Vertical", 4),
    Sketcher.Constraint("Horizontal", 5),
    Sketcher.Constraint("Vertical", 6),
    Sketcher.Constraint("Horizontal", 7),
    Sketcher.Constraint("Vertical", 8),
    Sketcher.Constraint("Horizontal", 9),
    Sketcher.Constraint("Vertical", 10),
    Sketcher.Constraint("Horizontal", 11),
    Sketcher.Constraint("Vertical", 12),
    Sketcher.Constraint("Horizontal", 13),
    Sketcher.Constraint("Vertical", 14),
    Sketcher.Constraint("Horizontal", 15),
    Sketcher.Constraint("Vertical", 16),
    Sketcher.Constraint("Horizontal", 17),
    Sketcher.Constraint("Vertical", 18),
    Sketcher.Constraint("Horizontal", 19),
    Sketcher.Constraint("Vertical", 20),
    Sketcher.Constraint("Horizontal", 21),
    Sketcher.Constraint("Vertical", 22),
    Sketcher.Constraint("Horizontal", 23),
    Sketcher.Constraint("Vertical", 24),
    Sketcher.Constraint("Horizontal", 25),
    Sketcher.Constraint("Vertical", 26),
    Sketcher.Constraint("Horizontal", 27),
    Sketcher.Constraint("Vertical", 28),
    Sketcher.Constraint("Horizontal", 29),
    Sketcher.Constraint("Vertical", 30),
    Sketcher.Constraint("Horizontal", 31),
    Sketcher.Constraint("Vertical", 32),
    Sketcher.Constraint("Horizontal", 33),
    Sketcher.Constraint("Vertical", 34),
    Sketcher.Constraint("Horizontal", 35),
    Sketcher.Constraint("Vertical", 36),
    Sketcher.Constraint("Horizontal", 37),
    Sketcher.Constraint("Vertical", 38),
    Sketcher.Constraint("Horizontal", 39),
    Sketcher.Constraint("Horizontal", 1, 2, 4, 2),
    Sketcher.Constraint("Horizontal", 3, 2, 6, 2),
    Sketcher.Constraint("Horizontal", 9, 2, 24, 2),
    Sketcher.Constraint("Horizontal", 11, 2, 26, 2),
    Sketcher.Constraint("Horizontal", 13, 2, 28, 2),
    Sketcher.Constraint("Horizontal", 15, 2, 30, 2),
    Sketcher.Constraint("Horizontal", 17, 2, 32, 2),
    Sketcher.Constraint("Horizontal", 19, 2, 34, 2),
    Sketcher.Constraint("Horizontal", 21, 2, 36, 2),
    Sketcher.Constraint("Horizontal", 23, 2, 38, 2),
    Sketcher.Constraint("Vertical", 7, 2, 8, 2),
    Sketcher.Constraint("Vertical", 6, 2, 9, 2),
    Sketcher.Constraint("Vertical", 11, 2, 12, 2),
    Sketcher.Constraint("Vertical", 10, 2, 13, 2),
    Sketcher.Constraint("Vertical", 15, 2, 16, 2),
    Sketcher.Constraint("Vertical", 14, 2, 17, 2),
    Sketcher.Constraint("Vertical", 19, 2, 20, 2),
    Sketcher.Constraint("Vertical", 18, 2, 21, 2),
    Sketcher.Constraint("Vertical", 3, 2, 24, 2),
    Sketcher.Constraint("Vertical", 2, 2, 25, 2),
    Sketcher.Constraint("Vertical", 27, 2, 28, 2),
    Sketcher.Constraint("Vertical", 26, 2, 29, 2),
    Sketcher.Constraint("Vertical", 31, 2, 32, 2),
    Sketcher.Constraint("Vertical", 30, 2, 33, 2),
    Sketcher.Constraint("Vertical", 35, 2, 36, 2),
    Sketcher.Constraint("Vertical", 34, 2, 37, 2),
    Sketcher.Constraint("Equal", 3, 5),
    Sketcher.Constraint("Equal", 39, 0),
    Sketcher.Constraint("Equal", 6, 8),
    Sketcher.Constraint("Equal", 10, 12),
    Sketcher.Constraint("Equal", 14, 16),
    Sketcher.Constraint("Equal", 18, 20),
    Sketcher.Constraint("DistanceX", 1, 1, 1, 2, Q("0.5 mm")),
    Sketcher.Constraint("DistanceX", 1, 2, 4, 2, Q("2 mm")),
    Sketcher.Constraint("DistanceY", 8, 2, 7, 2, Q("3 mm")),
    Sketcher.Constraint("DistanceY", 12, 2, 11, 2, Q("3 mm")),
    Sketcher.Constraint("DistanceY", 16, 2, 15, 2, Q("3 mm")),
    Sketcher.Constraint("DistanceY", 20, 2, 19, 2, Q("3 mm")),
    Sketcher.Constraint("DistanceX", 0, 2, -1, 1, Q("14.8 mm")),
    Sketcher.Constraint("DistanceY", 0, 2, -1, 1, Q("2.45 mm")),
])
pad12 = body.newObject("PartDesign::Pad", "Pad011")
pad12.Profile = sketch15
pad12.Length = 8.5

sketch16 = body.newObject("Sketcher::SketchObject", "Sketch015")
sketch16.AttachmentSupport = (doc.getObject("XZ_Plane"), [""])
sketch16.MapMode = "FlatFace"
sketch16.AttachmentOffset = App.Placement(Vector(0, 0, 1.2), App.Rotation())
sketch16.addGeometry([
    Part.LineSegment(Vector(-14.8, 4.8, 0), Vector(-14.8, 4.3, 0)),
    Part.LineSegment(Vector(-14.8, 4.3, 0), Vector(-14.3, 4.3, 0)),
    Part.LineSegment(Vector(-14.3, 4.3, 0), Vector(-14.3, 4.8, 0)),
    Part.LineSegment(Vector(-14.3, 4.8, 0), Vector(-14.8, 4.8, 0)),
    Part.LineSegment(Vector(-12.3, 4.8, 0), Vector(-12.3, 4.3, 0)),
    Part.LineSegment(Vector(-12.3, 4.3, 0), Vector(-11.8, 4.3, 0)),
    Part.LineSegment(Vector(-11.8, 4.3, 0), Vector(-11.8, 4.8, 0)),
    Part.LineSegment(Vector(-11.8, 4.8, 0), Vector(-12.3, 4.8, 0)),
    Part.LineSegment(Vector(-12.3, 7.3, 0), Vector(-12.3, 6.8, 0)),
    Part.LineSegment(Vector(-12.3, 6.8, 0), Vector(-11.8, 6.8, 0)),
    Part.LineSegment(Vector(-11.8, 6.8, 0), Vector(-11.8, 7.3, 0)),
    Part.LineSegment(Vector(-11.8, 7.3, 0), Vector(-12.3, 7.3, 0)),
    Part.LineSegment(Vector(-12.3, 9.8, 0), Vector(-12.3, 9.3, 0)),
    Part.LineSegment(Vector(-12.3, 9.3, 0), Vector(-11.8, 9.3, 0)),
    Part.LineSegment(Vector(-11.8, 9.3, 0), Vector(-11.8, 9.8, 0)),
    Part.LineSegment(Vector(-11.8, 9.8, 0), Vector(-12.3, 9.8, 0)),
    Part.LineSegment(Vector(-14.8, 7.3, 0), Vector(-14.8, 6.8, 0)),
    Part.LineSegment(Vector(-14.8, 6.8, 0), Vector(-14.3, 6.8, 0)),
    Part.LineSegment(Vector(-14.3, 6.8, 0), Vector(-14.3, 7.3, 0)),
    Part.LineSegment(Vector(-14.3, 7.3, 0), Vector(-14.8, 7.3, 0)),
    Part.LineSegment(Vector(-14.8, 9.8, 0), Vector(-14.8, 9.3, 0)),
    Part.LineSegment(Vector(-14.8, 9.3, 0), Vector(-14.3, 9.3, 0)),
    Part.LineSegment(Vector(-14.3, 9.3, 0), Vector(-14.3, 9.8, 0)),
    Part.LineSegment(Vector(-14.3, 9.8, 0), Vector(-14.8, 9.8, 0)),
], False)
sketch16.addConstraint([
    Sketcher.Constraint("Coincident", 0, 2, 1, 1),
    Sketcher.Constraint("Coincident", 1, 2, 2, 1),
    Sketcher.Constraint("Coincident", 2, 2, 3, 1),
    Sketcher.Constraint("Coincident", 3, 2, 0, 1),
    Sketcher.Constraint("Coincident", 4, 2, 5, 1),
    Sketcher.Constraint("Coincident", 5, 2, 6, 1),
    Sketcher.Constraint("Coincident", 6, 2, 7, 1),
    Sketcher.Constraint("Coincident", 7, 2, 4, 1),
    Sketcher.Constraint("Coincident", 8, 2, 9, 1),
    Sketcher.Constraint("Coincident", 9, 2, 10, 1),
    Sketcher.Constraint("Coincident", 10, 2, 11, 1),
    Sketcher.Constraint("Coincident", 11, 2, 8, 1),
    Sketcher.Constraint("Coincident", 12, 2, 13, 1),
    Sketcher.Constraint("Coincident", 13, 2, 14, 1),
    Sketcher.Constraint("Coincident", 14, 2, 15, 1),
    Sketcher.Constraint("Coincident", 15, 2, 12, 1),
    Sketcher.Constraint("Coincident", 16, 2, 17, 1),
    Sketcher.Constraint("Coincident", 17, 2, 18, 1),
    Sketcher.Constraint("Coincident", 18, 2, 19, 1),
    Sketcher.Constraint("Coincident", 19, 2, 16, 1),
    Sketcher.Constraint("Coincident", 20, 2, 21, 1),
    Sketcher.Constraint("Coincident", 21, 2, 22, 1),
    Sketcher.Constraint("Coincident", 22, 2, 23, 1),
    Sketcher.Constraint("Coincident", 23, 2, 20, 1),
    Sketcher.Constraint("Vertical", 0),
    Sketcher.Constraint("Horizontal", 1),
    Sketcher.Constraint("Vertical", 2),
    Sketcher.Constraint("Horizontal", 3),
    Sketcher.Constraint("Vertical", 4),
    Sketcher.Constraint("Horizontal", 5),
    Sketcher.Constraint("Vertical", 6),
    Sketcher.Constraint("Horizontal", 7),
    Sketcher.Constraint("Vertical", 8),
    Sketcher.Constraint("Horizontal", 9),
    Sketcher.Constraint("Vertical", 10),
    Sketcher.Constraint("Horizontal", 11),
    Sketcher.Constraint("Vertical", 12),
    Sketcher.Constraint("Horizontal", 13),
    Sketcher.Constraint("Vertical", 14),
    Sketcher.Constraint("Horizontal", 15),
    Sketcher.Constraint("Vertical", 16),
    Sketcher.Constraint("Horizontal", 17),
    Sketcher.Constraint("Vertical", 18),
    Sketcher.Constraint("Horizontal", 19),
    Sketcher.Constraint("Vertical", 20),
    Sketcher.Constraint("Horizontal", 21),
    Sketcher.Constraint("Vertical", 22),
    Sketcher.Constraint("Horizontal", 23),
    Sketcher.Constraint("Horizontal", 1, 2, 4, 2),
    Sketcher.Constraint("Horizontal", 3, 2, 6, 2),
    Sketcher.Constraint("Horizontal", 9, 2, 16, 2),
    Sketcher.Constraint("Horizontal", 11, 2, 18, 2),
    Sketcher.Constraint("Horizontal", 13, 2, 20, 2),
    Sketcher.Constraint("Horizontal", 15, 2, 22, 2),
    Sketcher.Constraint("Vertical", 7, 2, 8, 2),
    Sketcher.Constraint("Vertical", 6, 2, 9, 2),
    Sketcher.Constraint("Vertical", 11, 2, 12, 2),
    Sketcher.Constraint("Vertical", 10, 2, 13, 2),
    Sketcher.Constraint("Vertical", 3, 2, 16, 2),
    Sketcher.Constraint("Vertical", 2, 2, 17, 2),
    Sketcher.Constraint("Vertical", 19, 2, 20, 2),
    Sketcher.Constraint("Vertical", 18, 2, 21, 2),
    Sketcher.Constraint("Equal", 3, 5),
    Sketcher.Constraint("Equal", 23, 0),
    Sketcher.Constraint("Equal", 6, 8),
    Sketcher.Constraint("Equal", 10, 12),
    Sketcher.Constraint("DistanceX", 1, 1, 1, 2, Q("0.5 mm")),
    Sketcher.Constraint("DistanceX", 1, 2, 4, 2, Q("2 mm")),
    Sketcher.Constraint("DistanceY", 7, 2, 8, 2, Q("2 mm")),
    Sketcher.Constraint("DistanceY", 11, 2, 12, 2, Q("2 mm")),
    Sketcher.Constraint("DistanceX", 0, 2, -1, 1, Q("14.8 mm")),
    Sketcher.Constraint("DistanceY", -1, 1, 0, 2, Q("4.35 mm")),
])
pad13 = body.newObject("PartDesign::Pad", "Pad012")
pad13.Profile = sketch16
pad13.Length = 8.5

sketch17 = body.newObject("Sketcher::SketchObject", "Sketch016")
sketch17.AttachmentSupport = (doc.getObject("XZ_Plane"), [""])
sketch17.MapMode = "FlatFace"
sketch17.AttachmentOffset = App.Placement(Vector(0, 0, 1.2), App.Rotation())
sketch17.addGeometry([
    Part.LineSegment(Vector(-17.3, 2, 0), Vector(-17.3, -16.9, 0)),
    Part.LineSegment(Vector(-17.3, -16.9, 0), Vector(-9.8, -16.9, 0)),
    Part.LineSegment(Vector(-9.8, -16.9, 0), Vector(-9.8, 2, 0)),
    Part.LineSegment(Vector(-9.8, 2, 0), Vector(-17.3, 2, 0)),
    Part.LineSegment(Vector(-11.8, 10.8, 0), Vector(-14.8, 10.8, 0)),
    Part.ArcOfCircle(Part.Circle(Vector(-14.8, 9.6, 0), Vector(0, 0, 1), 1.2), math.radians(90), math.radians(270)),
    Part.ArcOfCircle(Part.Circle(Vector(-14.8, 7.1, 0), Vector(0, 0, 1), 1.2), math.radians(90), math.radians(270)),
    Part.ArcOfCircle(Part.Circle(Vector(-14.8, 4.6, 0), Vector(0, 0, 1), 1.2), math.radians(90), math.radians(270)),
    Part.LineSegment(Vector(-14.8, 3.4, 0), Vector(-11.8, 3.4, 0)),
    Part.ArcOfCircle(Part.Circle(Vector(-11.8, 4.6, 0), Vector(0, 0, 1), 1.2), math.radians(-90), math.radians(90)),
    Part.ArcOfCircle(Part.Circle(Vector(-11.8, 7.1, 0), Vector(0, 0, 1), 1.2), math.radians(-90), math.radians(90)),
    Part.ArcOfCircle(Part.Circle(Vector(-11.8, 9.6, 0), Vector(0, 0, 1), 1.2), math.radians(-90), math.radians(90)),
], False)
sketch17.addConstraint([
    Sketcher.Constraint("Coincident", 0, 2, 1, 1),
    Sketcher.Constraint("Coincident", 1, 2, 2, 1),
    Sketcher.Constraint("Coincident", 2, 2, 3, 1),
    Sketcher.Constraint("Coincident", 3, 2, 0, 1),
    Sketcher.Constraint("Tangent", 4, 2, 5, 1),
    Sketcher.Constraint("Tangent", 5, 2, 6, 1),
    Sketcher.Constraint("Tangent", 6, 2, 7, 1),
    Sketcher.Constraint("Tangent", 7, 2, 8, 1),
    Sketcher.Constraint("Tangent", 8, 2, 9, 1),
    Sketcher.Constraint("Tangent", 9, 2, 10, 1),
    Sketcher.Constraint("Tangent", 10, 2, 11, 1),
    Sketcher.Constraint("Tangent", 11, 2, 4, 1),
    Sketcher.Constraint("Vertical", 0),
    Sketcher.Constraint("Horizontal", 1),
    Sketcher.Constraint("Vertical", 2),
    Sketcher.Constraint("Horizontal", 3),
    Sketcher.Constraint("Horizontal", 4),
    Sketcher.Constraint("Horizontal", 8),
    Sketcher.Constraint("Equal", 5, 6),
    Sketcher.Constraint("Equal", 6, 7),
    Sketcher.Constraint("Equal", 7, 9),
    Sketcher.Constraint("Equal", 9, 10),
    Sketcher.Constraint("Vertical", 5, 3, 6, 3),
    Sketcher.Constraint("Vertical", 6, 3, 7, 3),
    Sketcher.Constraint("Vertical", 9, 3, 10, 3),
    Sketcher.Constraint("Vertical", 10, 3, 11, 3),
    Sketcher.Constraint("DistanceX", 4, 2, 4, 1, Q("3 mm")),
    Sketcher.Constraint("DistanceY", 0, 2, 0, 1, Q("19 mm")),
    Sketcher.Constraint("Radius", 5, Q("1.25 mm")),
    Sketcher.Constraint("DistanceX", 1, 1, 1, 2, Q("7.5 mm")),
    Sketcher.Constraint("DistanceX", 9, 3, 1, 2, Q("2 mm")),
    Sketcher.Constraint("DistanceX", 5, 3, -1, 1, Q("14.8 mm")),
    Sketcher.Constraint("DistanceY", -1, 1, 5, 3, Q("9.6 mm")),
    Sketcher.Constraint("DistanceY", 3, 2, 7, 2, Q("1.3 mm")),
])
pad14 = body.newObject("PartDesign::Pad", "Pad013")
pad14.Profile = sketch17
pad14.Length = 2.5

doc.recompute()
